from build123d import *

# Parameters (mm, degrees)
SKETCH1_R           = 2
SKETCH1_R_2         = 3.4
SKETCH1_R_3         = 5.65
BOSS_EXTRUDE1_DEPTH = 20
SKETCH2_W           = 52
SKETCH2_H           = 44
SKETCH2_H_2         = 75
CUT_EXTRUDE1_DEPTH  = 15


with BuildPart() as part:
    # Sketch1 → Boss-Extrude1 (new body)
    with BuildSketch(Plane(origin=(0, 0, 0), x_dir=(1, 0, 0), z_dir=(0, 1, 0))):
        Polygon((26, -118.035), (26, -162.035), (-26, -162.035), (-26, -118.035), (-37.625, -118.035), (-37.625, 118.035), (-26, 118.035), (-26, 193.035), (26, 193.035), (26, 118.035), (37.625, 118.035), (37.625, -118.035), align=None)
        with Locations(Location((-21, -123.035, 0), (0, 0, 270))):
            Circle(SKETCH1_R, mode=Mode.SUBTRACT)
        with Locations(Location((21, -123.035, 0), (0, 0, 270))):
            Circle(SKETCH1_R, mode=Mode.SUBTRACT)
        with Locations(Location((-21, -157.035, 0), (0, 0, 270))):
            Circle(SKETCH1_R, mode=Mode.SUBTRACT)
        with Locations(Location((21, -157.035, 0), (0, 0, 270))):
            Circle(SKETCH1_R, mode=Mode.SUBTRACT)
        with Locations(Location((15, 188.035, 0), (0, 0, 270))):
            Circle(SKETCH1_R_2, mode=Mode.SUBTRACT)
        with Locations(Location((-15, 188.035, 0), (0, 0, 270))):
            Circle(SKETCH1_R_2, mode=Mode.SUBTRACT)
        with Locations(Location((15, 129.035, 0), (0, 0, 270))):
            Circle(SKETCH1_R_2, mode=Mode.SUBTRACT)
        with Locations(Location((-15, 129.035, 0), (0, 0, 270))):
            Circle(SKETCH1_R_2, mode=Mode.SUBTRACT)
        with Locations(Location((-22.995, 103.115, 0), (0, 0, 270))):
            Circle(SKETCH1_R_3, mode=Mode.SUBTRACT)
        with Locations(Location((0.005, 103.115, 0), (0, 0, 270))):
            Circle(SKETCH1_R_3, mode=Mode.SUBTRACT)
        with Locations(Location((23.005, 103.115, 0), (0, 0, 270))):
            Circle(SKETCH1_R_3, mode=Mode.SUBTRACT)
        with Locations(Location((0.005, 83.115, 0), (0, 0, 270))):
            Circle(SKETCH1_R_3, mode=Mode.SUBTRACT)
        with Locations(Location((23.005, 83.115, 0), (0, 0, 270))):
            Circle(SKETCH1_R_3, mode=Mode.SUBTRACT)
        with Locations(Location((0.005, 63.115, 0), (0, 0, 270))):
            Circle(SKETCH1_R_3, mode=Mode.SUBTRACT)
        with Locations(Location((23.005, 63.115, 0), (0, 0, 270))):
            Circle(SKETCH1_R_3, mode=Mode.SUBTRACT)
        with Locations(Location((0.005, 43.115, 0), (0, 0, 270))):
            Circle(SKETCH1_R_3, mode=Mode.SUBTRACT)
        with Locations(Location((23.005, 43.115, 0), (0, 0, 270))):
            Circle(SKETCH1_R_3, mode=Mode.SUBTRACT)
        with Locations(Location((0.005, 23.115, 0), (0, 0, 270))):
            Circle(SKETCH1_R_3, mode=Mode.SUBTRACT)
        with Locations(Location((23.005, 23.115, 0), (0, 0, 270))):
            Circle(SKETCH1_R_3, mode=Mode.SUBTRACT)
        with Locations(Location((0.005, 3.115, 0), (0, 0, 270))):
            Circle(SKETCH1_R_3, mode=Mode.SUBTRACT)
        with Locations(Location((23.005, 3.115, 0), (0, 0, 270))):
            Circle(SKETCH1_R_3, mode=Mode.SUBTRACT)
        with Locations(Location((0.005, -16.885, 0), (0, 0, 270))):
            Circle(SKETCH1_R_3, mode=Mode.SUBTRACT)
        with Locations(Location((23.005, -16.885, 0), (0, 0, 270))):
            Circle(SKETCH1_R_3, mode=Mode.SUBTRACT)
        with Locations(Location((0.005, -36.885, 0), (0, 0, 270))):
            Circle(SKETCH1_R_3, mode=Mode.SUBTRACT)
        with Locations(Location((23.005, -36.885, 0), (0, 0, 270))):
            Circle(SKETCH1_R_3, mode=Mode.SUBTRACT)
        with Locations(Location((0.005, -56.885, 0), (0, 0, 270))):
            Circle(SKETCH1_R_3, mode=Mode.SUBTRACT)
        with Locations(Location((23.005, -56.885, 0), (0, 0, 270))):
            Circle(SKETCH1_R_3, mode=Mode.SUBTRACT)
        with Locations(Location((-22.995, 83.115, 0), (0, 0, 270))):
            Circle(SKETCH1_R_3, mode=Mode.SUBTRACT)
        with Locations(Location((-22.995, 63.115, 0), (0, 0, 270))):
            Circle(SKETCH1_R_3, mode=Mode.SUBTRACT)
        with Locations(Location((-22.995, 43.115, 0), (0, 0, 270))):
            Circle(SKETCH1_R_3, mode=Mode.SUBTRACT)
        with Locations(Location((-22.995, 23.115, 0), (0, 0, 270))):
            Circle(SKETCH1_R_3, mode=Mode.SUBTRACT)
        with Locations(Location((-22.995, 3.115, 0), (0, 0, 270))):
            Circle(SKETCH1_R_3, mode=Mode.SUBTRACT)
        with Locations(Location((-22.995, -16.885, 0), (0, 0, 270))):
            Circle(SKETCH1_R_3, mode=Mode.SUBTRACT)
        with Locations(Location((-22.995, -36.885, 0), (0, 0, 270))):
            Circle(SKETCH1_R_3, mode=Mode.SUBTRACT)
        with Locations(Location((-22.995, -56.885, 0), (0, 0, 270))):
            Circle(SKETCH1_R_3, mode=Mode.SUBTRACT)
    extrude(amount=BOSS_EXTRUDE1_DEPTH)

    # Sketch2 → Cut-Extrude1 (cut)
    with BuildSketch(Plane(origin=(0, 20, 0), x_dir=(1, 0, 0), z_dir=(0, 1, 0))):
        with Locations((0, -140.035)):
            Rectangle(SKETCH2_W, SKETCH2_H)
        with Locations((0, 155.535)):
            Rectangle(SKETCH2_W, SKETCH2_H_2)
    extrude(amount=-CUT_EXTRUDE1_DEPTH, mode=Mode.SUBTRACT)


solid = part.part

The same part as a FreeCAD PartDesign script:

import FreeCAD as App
import Part
import Sketcher
from FreeCAD import Vector
Q = App.Units.Quantity

doc = App.newDocument("Part")
body = doc.addObject("PartDesign::Body", "Body")

sketch1 = body.newObject("Sketcher::SketchObject", "Sketch")
sketch1.AttachmentSupport = (doc.getObject("XZ_Plane"), [""])
sketch1.MapMode = "FlatFace"
sketch1.addGeometry(Part.LineSegment(Vector(26, 162.035, 0), Vector(26, 118.035, 0)), False)
sketch1.addGeometry(Part.LineSegment(Vector(26, 118.035, 0), Vector(37.625, 118.035, 0)), False)
sketch1.addGeometry(Part.LineSegment(Vector(37.625, 118.035, 0), Vector(37.625, -118.035, 0)), False)
sketch1.addGeometry(Part.LineSegment(Vector(37.625, -118.035, 0), Vector(26, -118.035, 0)), False)
sketch1.addGeometry(Part.LineSegment(Vector(26, -118.035, 0), Vector(26, -193.035, 0)), False)
sketch1.addGeometry(Part.LineSegment(Vector(26, -193.035, 0), Vector(-26, -193.035, 0)), False)
sketch1.addGeometry(Part.LineSegment(Vector(-26, -193.035, 0), Vector(-26, -118.035, 0)), False)
sketch1.addGeometry(Part.LineSegment(Vector(-26, -118.035, 0), Vector(-37.625, -118.035, 0)), False)
sketch1.addGeometry(Part.LineSegment(Vector(-37.625, -118.035, 0), Vector(-37.625, 118.035, 0)), False)
sketch1.addGeometry(Part.LineSegment(Vector(-37.625, 118.035, 0), Vector(-26, 118.035, 0)), False)
sketch1.addGeometry(Part.LineSegment(Vector(-26, 118.035, 0), Vector(-26, 162.035, 0)), False)
sketch1.addGeometry(Part.LineSegment(Vector(-26, 162.035, 0), Vector(26, 162.035, 0)), False)
sketch1.addGeometry(Part.Circle(Vector(21, 157.035, 0), Vector(0, 0, 1), 2), False)
sketch1.addGeometry(Part.Circle(Vector(21, 123.035, 0), Vector(0, 0, 1), 2), False)
sketch1.addGeometry(Part.Circle(Vector(23.005, 56.885, 0), Vector(0, 0, 1), 5.65), False)
sketch1.addGeometry(Part.Circle(Vector(23.005, 36.885, 0), Vector(0, 0, 1), 5.65), False)
sketch1.addGeometry(Part.Circle(Vector(23.005, 16.885, 0), Vector(0, 0, 1), 5.65), False)
sketch1.addGeometry(Part.Circle(Vector(23.005, -3.115, 0), Vector(0, 0, 1), 5.65), False)
sketch1.addGeometry(Part.Circle(Vector(-21, 157.035, 0), Vector(0, 0, 1), 2), False)
sketch1.addGeometry(Part.Circle(Vector(-21, 123.035, 0), Vector(0, 0, 1), 2), False)
sketch1.addGeometry(Part.Circle(Vector(0.005, 56.885, 0), Vector(0, 0, 1), 5.65), False)
sketch1.addGeometry(Part.Circle(Vector(0.005, 36.885, 0), Vector(0, 0, 1), 5.65), False)
sketch1.addGeometry(Part.Circle(Vector(0.005, 16.885, 0), Vector(0, 0, 1), 5.65), False)
sketch1.addGeometry(Part.Circle(Vector(0.005, -3.115, 0), Vector(0, 0, 1), 5.65), False)
sketch1.addGeometry(Part.Circle(Vector(-22.995, 56.885, 0), Vector(0, 0, 1), 5.65), False)
sketch1.addGeometry(Part.Circle(Vector(-22.995, 36.885, 0), Vector(0, 0, 1), 5.65), False)
sketch1.addGeometry(Part.Circle(Vector(-22.995, 16.885, 0), Vector(0, 0, 1), 5.65), False)
sketch1.addGeometry(Part.Circle(Vector(-22.995, -3.115, 0), Vector(0, 0, 1), 5.65), False)
sketch1.addGeometry(Part.Circle(Vector(23.005, -23.115, 0), Vector(0, 0, 1), 5.65), False)
sketch1.addGeometry(Part.Circle(Vector(23.005, -43.115, 0), Vector(0, 0, 1), 5.65), False)
sketch1.addGeometry(Part.Circle(Vector(23.005, -63.115, 0), Vector(0, 0, 1), 5.65), False)
sketch1.addGeometry(Part.Circle(Vector(23.005, -83.115, 0), Vector(0, 0, 1), 5.65), False)
sketch1.addGeometry(Part.Circle(Vector(23.005, -103.115, 0), Vector(0, 0, 1), 5.65), False)
sketch1.addGeometry(Part.Circle(Vector(15, -129.035, 0), Vector(0, 0, 1), 3.4), False)
sketch1.addGeometry(Part.Circle(Vector(15, -188.035, 0), Vector(0, 0, 1), 3.4), False)
sketch1.addGeometry(Part.Circle(Vector(0.005, -23.115, 0), Vector(0, 0, 1), 5.65), False)
sketch1.addGeometry(Part.Circle(Vector(0.005, -43.115, 0), Vector(0, 0, 1), 5.65), False)
sketch1.addGeometry(Part.Circle(Vector(0.005, -63.115, 0), Vector(0, 0, 1), 5.65), False)
sketch1.addGeometry(Part.Circle(Vector(0.005, -83.115, 0), Vector(0, 0, 1), 5.65), False)
sketch1.addGeometry(Part.Circle(Vector(0.005, -103.115, 0), Vector(0, 0, 1), 5.65), False)
sketch1.addGeometry(Part.Circle(Vector(-22.995, -23.115, 0), Vector(0, 0, 1), 5.65), False)
sketch1.addGeometry(Part.Circle(Vector(-22.995, -43.115, 0), Vector(0, 0, 1), 5.65), False)
sketch1.addGeometry(Part.Circle(Vector(-22.995, -63.115, 0), Vector(0, 0, 1), 5.65), False)
sketch1.addGeometry(Part.Circle(Vector(-22.995, -83.115, 0), Vector(0, 0, 1), 5.65), False)
sketch1.addGeometry(Part.Circle(Vector(-22.995, -103.115, 0), Vector(0, 0, 1), 5.65), False)
sketch1.addGeometry(Part.Circle(Vector(-15, -129.035, 0), Vector(0, 0, 1), 3.4), False)
sketch1.addGeometry(Part.Circle(Vector(-15, -188.035, 0), Vector(0, 0, 1), 3.4), False)
sketch1.addConstraint(Sketcher.Constraint("Coincident", 0, 2, 1, 1))
sketch1.addConstraint(Sketcher.Constraint("Coincident", 1, 2, 2, 1))
sketch1.addConstraint(Sketcher.Constraint("Coincident", 2, 2, 3, 1))
sketch1.addConstraint(Sketcher.Constraint("Coincident", 3, 2, 4, 1))
sketch1.addConstraint(Sketcher.Constraint("Coincident", 4, 2, 5, 1))
sketch1.addConstraint(Sketcher.Constraint("Coincident", 5, 2, 6, 1))
sketch1.addConstraint(Sketcher.Constraint("Coincident", 6, 2, 7, 1))
sketch1.addConstraint(Sketcher.Constraint("Coincident", 7, 2, 8, 1))
sketch1.addConstraint(Sketcher.Constraint("Coincident", 8, 2, 9, 1))
sketch1.addConstraint(Sketcher.Constraint("Coincident", 9, 2, 10, 1))
sketch1.addConstraint(Sketcher.Constraint("Coincident", 10, 2, 11, 1))
sketch1.addConstraint(Sketcher.Constraint("Coincident", 11, 2, 0, 1))
sketch1.addConstraint(Sketcher.Constraint("Vertical", 0))
sketch1.addConstraint(Sketcher.Constraint("Horizontal", 1))
sketch1.addConstraint(Sketcher.Constraint("Vertical", 2))
sketch1.addConstraint(Sketcher.Constraint("Horizontal", 3))
sketch1.addConstraint(Sketcher.Constraint("Vertical", 4))
sketch1.addConstraint(Sketcher.Constraint("Horizontal", 5))
sketch1.addConstraint(Sketcher.Constraint("Vertical", 6))
sketch1.addConstraint(Sketcher.Constraint("Horizontal", 7))
sketch1.addConstraint(Sketcher.Constraint("Vertical", 8))
sketch1.addConstraint(Sketcher.Constraint("Horizontal", 9))
sketch1.addConstraint(Sketcher.Constraint("Vertical", 10))
sketch1.addConstraint(Sketcher.Constraint("Horizontal", 11))
sketch1.addConstraint(Sketcher.Constraint("Equal", 12, 13))
sketch1.addConstraint(Sketcher.Constraint("Equal", 14, 15))
sketch1.addConstraint(Sketcher.Constraint("Equal", 15, 16))
sketch1.addConstraint(Sketcher.Constraint("Equal", 16, 17))
sketch1.addConstraint(Sketcher.Constraint("Equal", 13, 18))
sketch1.addConstraint(Sketcher.Constraint("Equal", 18, 19))
sketch1.addConstraint(Sketcher.Constraint("Equal", 17, 20))
sketch1.addConstraint(Sketcher.Constraint("Equal", 20, 21))
sketch1.addConstraint(Sketcher.Constraint("Equal", 21, 22))
sketch1.addConstraint(Sketcher.Constraint("Equal", 22, 23))
sketch1.addConstraint(Sketcher.Constraint("Equal", 23, 24))
sketch1.addConstraint(Sketcher.Constraint("Equal", 24, 25))
sketch1.addConstraint(Sketcher.Constraint("Equal", 25, 26))
sketch1.addConstraint(Sketcher.Constraint("Equal", 26, 27))
sketch1.addConstraint(Sketcher.Constraint("Equal", 27, 28))
sketch1.addConstraint(Sketcher.Constraint("Equal", 28, 29))
sketch1.addConstraint(Sketcher.Constraint("Equal", 29, 30))
sketch1.addConstraint(Sketcher.Constraint("Equal", 30, 31))
sketch1.addConstraint(Sketcher.Constraint("Equal", 31, 32))
sketch1.addConstraint(Sketcher.Constraint("Equal", 33, 34))
sketch1.addConstraint(Sketcher.Constraint("Equal", 32, 35))
sketch1.addConstraint(Sketcher.Constraint("Equal", 35, 36))
sketch1.addConstraint(Sketcher.Constraint("Equal", 36, 37))
sketch1.addConstraint(Sketcher.Constraint("Equal", 37, 38))
sketch1.addConstraint(Sketcher.Constraint("Equal", 38, 39))
sketch1.addConstraint(Sketcher.Constraint("Equal", 39, 40))
sketch1.addConstraint(Sketcher.Constraint("Equal", 40, 41))
sketch1.addConstraint(Sketcher.Constraint("Equal", 41, 42))
sketch1.addConstraint(Sketcher.Constraint("Equal", 42, 43))
sketch1.addConstraint(Sketcher.Constraint("Equal", 43, 44))
sketch1.addConstraint(Sketcher.Constraint("Equal", 34, 45))
sketch1.addConstraint(Sketcher.Constraint("Equal", 45, 46))
sketch1.addConstraint(Sketcher.Constraint("Symmetric", 0, 2, 6, 2, -1, 1))
sketch1.addConstraint(Sketcher.Constraint("Symmetric", 2, 2, 8, 2, -1, 1))
sketch1.addConstraint(Sketcher.Constraint("Symmetric", 12, 3, 18, 3, -2))
sketch1.addConstraint(Sketcher.Constraint("Symmetric", 13, 3, 19, 3, -2))
sketch1.addConstraint(Sketcher.Constraint("Symmetric", 33, 3, 45, 3, -2))
sketch1.addConstraint(Sketcher.Constraint("Symmetric", 34, 3, 46, 3, -2))
sketch1.addConstraint(Sketcher.Constraint("Symmetric", 3, 2, 6, 2, -2))
sketch1.addConstraint(Sketcher.Constraint("Horizontal", 14, 3, 20, 3))
sketch1.addConstraint(Sketcher.Constraint("Horizontal", 15, 3, 21, 3))
sketch1.addConstraint(Sketcher.Constraint("Horizontal", 16, 3, 22, 3))
sketch1.addConstraint(Sketcher.Constraint("Horizontal", 17, 3, 23, 3))
sketch1.addConstraint(Sketcher.Constraint("Horizontal", 20, 3, 24, 3))
sketch1.addConstraint(Sketcher.Constraint("Horizontal", 21, 3, 25, 3))
sketch1.addConstraint(Sketcher.Constraint("Horizontal", 22, 3, 26, 3))
sketch1.addConstraint(Sketcher.Constraint("Horizontal", 23, 3, 27, 3))
sketch1.addConstraint(Sketcher.Constraint("Horizontal", 28, 3, 35, 3))
sketch1.addConstraint(Sketcher.Constraint("Horizontal", 29, 3, 36, 3))
sketch1.addConstraint(Sketcher.Constraint("Horizontal", 30, 3, 37, 3))
sketch1.addConstraint(Sketcher.Constraint("Horizontal", 31, 3, 38, 3))
sketch1.addConstraint(Sketcher.Constraint("Horizontal", 32, 3, 39, 3))
sketch1.addConstraint(Sketcher.Constraint("Horizontal", 35, 3, 40, 3))
sketch1.addConstraint(Sketcher.Constraint("Horizontal", 36, 3, 41, 3))
sketch1.addConstraint(Sketcher.Constraint("Horizontal", 37, 3, 42, 3))
sketch1.addConstraint(Sketcher.Constraint("Horizontal", 38, 3, 43, 3))
sketch1.addConstraint(Sketcher.Constraint("Horizontal", 39, 3, 44, 3))
sketch1.addConstraint(Sketcher.Constraint("Vertical", 12, 3, 13, 3))
sketch1.addConstraint(Sketcher.Constraint("Vertical", 14, 3, 15, 3))
sketch1.addConstraint(Sketcher.Constraint("Vertical", 15, 3, 16, 3))
sketch1.addConstraint(Sketcher.Constraint("Vertical", 16, 3, 17, 3))
sketch1.addConstraint(Sketcher.Constraint("Vertical", 20, 3, 21, 3))
sketch1.addConstraint(Sketcher.Constraint("Vertical", 21, 3, 22, 3))
sketch1.addConstraint(Sketcher.Constraint("Vertical", 22, 3, 23, 3))
sketch1.addConstraint(Sketcher.Constraint("Vertical", 24, 3, 25, 3))
sketch1.addConstraint(Sketcher.Constraint("Vertical", 25, 3, 26, 3))
sketch1.addConstraint(Sketcher.Constraint("Vertical", 26, 3, 27, 3))
sketch1.addConstraint(Sketcher.Constraint("Vertical", 17, 3, 28, 3))
sketch1.addConstraint(Sketcher.Constraint("Vertical", 28, 3, 29, 3))
sketch1.addConstraint(Sketcher.Constraint("Vertical", 29, 3, 30, 3))
sketch1.addConstraint(Sketcher.Constraint("Vertical", 30, 3, 31, 3))
sketch1.addConstraint(Sketcher.Constraint("Vertical", 31, 3, 32, 3))
sketch1.addConstraint(Sketcher.Constraint("Vertical", 33, 3, 34, 3))
sketch1.addConstraint(Sketcher.Constraint("Vertical", 23, 3, 35, 3))
sketch1.addConstraint(Sketcher.Constraint("Vertical", 35, 3, 36, 3))
sketch1.addConstraint(Sketcher.Constraint("Vertical", 36, 3, 37, 3))
sketch1.addConstraint(Sketcher.Constraint("Vertical", 37, 3, 38, 3))
sketch1.addConstraint(Sketcher.Constraint("Vertical", 38, 3, 39, 3))
sketch1.addConstraint(Sketcher.Constraint("Vertical", 27, 3, 40, 3))
sketch1.addConstraint(Sketcher.Constraint("Vertical", 40, 3, 41, 3))
sketch1.addConstraint(Sketcher.Constraint("Vertical", 41, 3, 42, 3))
sketch1.addConstraint(Sketcher.Constraint("Vertical", 42, 3, 43, 3))
sketch1.addConstraint(Sketcher.Constraint("Vertical", 43, 3, 44, 3))
sketch1.addConstraint(Sketcher.Constraint("Vertical", 6, 2, 9, 2))
sketch1.addConstraint(Sketcher.Constraint("Diameter", 12, Q("4 mm")))
sketch1.addConstraint(Sketcher.Constraint("Diameter", 14, Q("11.3 mm")))
sketch1.addConstraint(Sketcher.Constraint("Diameter", 33, Q("6.8 mm")))
sketch1.addConstraint(Sketcher.Constraint("DistanceX", 5, 2, 5, 1, Q("52 mm")))
sketch1.addConstraint(Sketcher.Constraint("DistanceY", 0, 2, 0, 1, Q("44 mm")))
sketch1.addConstraint(Sketcher.Constraint("DistanceY", 4, 2, 4, 1, Q("75 mm")))
sketch1.addConstraint(Sketcher.Constraint("DistanceX", -1, 1, 12, 3, Q("21 mm")))
sketch1.addConstraint(Sketcher.Constraint("DistanceX", -1, 1, 33, 3, Q("15 mm")))
sketch1.addConstraint(Sketcher.Constraint("DistanceY", 13, 3, 12, 3, Q("34 mm")))
sketch1.addConstraint(Sketcher.Constraint("DistanceY", 15, 3, 14, 3, Q("20 mm")))
sketch1.addConstraint(Sketcher.Constraint("DistanceY", 16, 3, 15, 3, Q("20 mm")))
sketch1.addConstraint(Sketcher.Constraint("DistanceY", 17, 3, 16, 3, Q("20 mm")))
sketch1.addConstraint(Sketcher.Constraint("DistanceX", 20, 3, 14, 3, Q("23 mm")))
sketch1.addConstraint(Sketcher.Constraint("DistanceX", 24, 3, 20, 3, Q("23 mm")))
sketch1.addConstraint(Sketcher.Constraint("DistanceY", 28, 3, 17, 3, Q("20 mm")))
sketch1.addConstraint(Sketcher.Constraint("DistanceY", 29, 3, 28, 3, Q("20 mm")))
sketch1.addConstraint(Sketcher.Constraint("DistanceY", 30, 3, 29, 3, Q("20 mm")))
sketch1.addConstraint(Sketcher.Constraint("DistanceY", 31, 3, 30, 3, Q("20 mm")))
sketch1.addConstraint(Sketcher.Constraint("DistanceY", 32, 3, 31, 3, Q("20 mm")))
sketch1.addConstraint(Sketcher.Constraint("DistanceY", 34, 3, 33, 3, Q("59 mm")))
sketch1.addConstraint(Sketcher.Constraint("DistanceY", 0, 2, 13, 3, Q("5 mm")))
sketch1.addConstraint(Sketcher.Constraint("DistanceY", 33, 3, 2, 2, Q("11 mm")))
sketch1.addConstraint(Sketcher.Constraint("DistanceY", 2, 2, 2, 1, Q("236.07 mm")))
sketch1.addConstraint(Sketcher.Constraint("DistanceX", 1, 1, 1, 2, Q("11.625 mm")))
sketch1.addConstraint(Sketcher.Constraint("DistanceY", 14, 3, 13, 3, Q("66.15 mm")))
sketch1.addConstraint(Sketcher.Constraint("DistanceX", 14, 3, 1, 2, Q("14.62 mm")))
pad1 = body.newObject("PartDesign::Pad", "Pad")
pad1.Profile = sketch1
pad1.Length = 20
pad1.Reversed = True

sketch2 = body.newObject("Sketcher::SketchObject", "Sketch001")
sketch2.AttachmentSupport = (doc.getObject("XZ_Plane"), [""])
sketch2.MapMode = "FlatFace"
sketch2.AttachmentOffset = App.Placement(Vector(0, 0, -20), App.Rotation())
sketch2.addGeometry(Part.LineSegment(Vector(-26, 118.035, 0), Vector(-26, 162.035, 0)), False)
sketch2.addGeometry(Part.LineSegment(Vector(-26, 162.035, 0), Vector(26, 162.035, 0)), False)
sketch2.addGeometry(Part.LineSegment(Vector(26, 162.035, 0), Vector(26, 118.035, 0)), False)
sketch2.addGeometry(Part.LineSegment(Vector(26, 118.035, 0), Vector(-26, 118.035, 0)), False)
sketch2.addGeometry(Part.LineSegment(Vector(-26, -193.035, 0), Vector(-26, -118.035, 0)), False)
sketch2.addGeometry(Part.LineSegment(Vector(-26, -118.035, 0), Vector(26, -118.035, 0)), False)
sketch2.addGeometry(Part.LineSegment(Vector(26, -118.035, 0), Vector(26, -193.035, 0)), False)
sketch2.addGeometry(Part.LineSegment(Vector(26, -193.035, 0), Vector(-26, -193.035, 0)), False)
sketch2.addConstraint(Sketcher.Constraint("Coincident", 0, 2, 1, 1))
sketch2.addConstraint(Sketcher.Constraint("Coincident", 1, 2, 2, 1))
sketch2.addConstraint(Sketcher.Constraint("Coincident", 2, 2, 3, 1))
sketch2.addConstraint(Sketcher.Constraint("Coincident", 3, 2, 0, 1))
sketch2.addConstraint(Sketcher.Constraint("Coincident", 4, 2, 5, 1))
sketch2.addConstraint(Sketcher.Constraint("Coincident", 5, 2, 6, 1))
sketch2.addConstraint(Sketcher.Constraint("Coincident", 6, 2, 7, 1))
sketch2.addConstraint(Sketcher.Constraint("Coincident", 7, 2, 4, 1))
sketch2.addConstraint(Sketcher.Constraint("Vertical", 0))
sketch2.addConstraint(Sketcher.Constraint("Horizontal", 1))
sketch2.addConstraint(Sketcher.Constraint("Vertical", 2))
sketch2.addConstraint(Sketcher.Constraint("Horizontal", 3))
sketch2.addConstraint(Sketcher.Constraint("Vertical", 4))
sketch2.addConstraint(Sketcher.Constraint("Horizontal", 5))
sketch2.addConstraint(Sketcher.Constraint("Vertical", 6))
sketch2.addConstraint(Sketcher.Constraint("Horizontal", 7))
sketch2.addConstraint(Sketcher.Constraint("Symmetric", 2, 2, 4, 2, -1, 1))
sketch2.addConstraint(Sketcher.Constraint("Vertical", 3, 2, 4, 2))
sketch2.addConstraint(Sketcher.Constraint("Vertical", 2, 2, 5, 2))
sketch2.addConstraint(Sketcher.Constraint("DistanceX", 1, 1, 1, 2, Q("52 mm")))
sketch2.addConstraint(Sketcher.Constraint("DistanceY", 0, 1, 0, 2, Q("44 mm")))
sketch2.addConstraint(Sketcher.Constraint("DistanceY", 4, 1, 4, 2, Q("75 mm")))
sketch2.addConstraint(Sketcher.Constraint("DistanceY", 4, 2, 3, 2, Q("236.07 mm")))
pocket1 = body.newObject("PartDesign::Pocket", "Pocket")
pocket1.Profile = sketch2
pocket1.Length = 15
pocket1.Reversed = True

doc.recompute()
